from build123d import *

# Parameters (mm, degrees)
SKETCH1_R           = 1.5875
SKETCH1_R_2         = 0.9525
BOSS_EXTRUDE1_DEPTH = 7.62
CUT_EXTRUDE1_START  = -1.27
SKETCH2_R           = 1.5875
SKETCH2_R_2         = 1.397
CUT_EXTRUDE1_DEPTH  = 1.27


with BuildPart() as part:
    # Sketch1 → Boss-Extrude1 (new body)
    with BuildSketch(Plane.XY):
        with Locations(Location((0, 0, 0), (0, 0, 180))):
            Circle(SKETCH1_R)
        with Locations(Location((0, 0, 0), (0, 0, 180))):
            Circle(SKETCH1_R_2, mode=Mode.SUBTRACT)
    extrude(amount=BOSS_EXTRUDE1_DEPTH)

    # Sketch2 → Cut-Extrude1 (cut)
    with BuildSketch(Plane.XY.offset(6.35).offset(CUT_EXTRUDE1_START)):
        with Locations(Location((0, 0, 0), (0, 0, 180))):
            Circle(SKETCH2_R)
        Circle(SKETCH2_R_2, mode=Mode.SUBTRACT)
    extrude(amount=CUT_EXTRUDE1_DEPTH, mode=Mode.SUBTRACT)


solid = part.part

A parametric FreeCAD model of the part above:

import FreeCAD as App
import Part
import Sketcher
Q = App.Units.Quantity

doc = App.newDocument("Part")
body = doc.addObject("PartDesign::Body", "Body")

# Sketch on XY plane
sketch1 = body.newObject("Sketcher::SketchObject", "Sketch")
sketch1.AttachmentSupport = (doc.getObject("XY_Plane"), [""])
sketch1.MapMode = "FlatFace"
sketch1.addGeometry(Part.Circle(App.Vector(0, 0, 0), App.Vector(0, 0, 1), 1.5875), False)
sketch1.addGeometry(Part.Circle(App.Vector(0, 0, 0), App.Vector(0, 0, 1), 0.9525), False)
sketch1.addConstraint(Sketcher.Constraint("Coincident", 0, 3, -1, 1))
sketch1.addConstraint(Sketcher.Constraint("Coincident", 1, 3, -1, 1))
sketch1.addConstraint(Sketcher.Constraint("Diameter", 0, Q("0.125 in")))
sketch1.addConstraint(Sketcher.Constraint("Diameter", 1, Q("0.075 in")))
pad1 = body.newObject("PartDesign::Pad", "Pad")
pad1.Profile = sketch1
pad1.Length = Q("0.3 in")

# Sketch on XY plane
sketch2 = body.newObject("Sketcher::SketchObject", "Sketch001")
sketch2.AttachmentSupport = (doc.getObject("XY_Plane"), [""])
sketch2.MapMode = "FlatFace"
sketch2.AttachmentOffset = App.Placement(App.Vector(0, 0, 0.2 * 25.4), App.Rotation())
sketch2.addGeometry(Part.Circle(App.Vector(0, 0, 0), App.Vector(0, 0, 1), 1.5875), False)
sketch2.addGeometry(Part.Circle(App.Vector(0, 0, 0), App.Vector(0, 0, 1), 1.397), False)
sketch2.addConstraint(Sketcher.Constraint("Coincident", 0, 3, -1, 1))
sketch2.addConstraint(Sketcher.Constraint("Coincident", 1, 3, -1, 1))
sketch2.addConstraint(Sketcher.Constraint("Diameter", 1, Q("0.11 in")))
sketch2.addConstraint(Sketcher.Constraint("Diameter", 0, Q("0.125 in")))
pocket1 = body.newObject("PartDesign::Pocket", "Pocket")
pocket1.Profile = sketch2
pocket1.Length = Q("0.05 in")
pocket1.Reversed = True

doc.recompute()
